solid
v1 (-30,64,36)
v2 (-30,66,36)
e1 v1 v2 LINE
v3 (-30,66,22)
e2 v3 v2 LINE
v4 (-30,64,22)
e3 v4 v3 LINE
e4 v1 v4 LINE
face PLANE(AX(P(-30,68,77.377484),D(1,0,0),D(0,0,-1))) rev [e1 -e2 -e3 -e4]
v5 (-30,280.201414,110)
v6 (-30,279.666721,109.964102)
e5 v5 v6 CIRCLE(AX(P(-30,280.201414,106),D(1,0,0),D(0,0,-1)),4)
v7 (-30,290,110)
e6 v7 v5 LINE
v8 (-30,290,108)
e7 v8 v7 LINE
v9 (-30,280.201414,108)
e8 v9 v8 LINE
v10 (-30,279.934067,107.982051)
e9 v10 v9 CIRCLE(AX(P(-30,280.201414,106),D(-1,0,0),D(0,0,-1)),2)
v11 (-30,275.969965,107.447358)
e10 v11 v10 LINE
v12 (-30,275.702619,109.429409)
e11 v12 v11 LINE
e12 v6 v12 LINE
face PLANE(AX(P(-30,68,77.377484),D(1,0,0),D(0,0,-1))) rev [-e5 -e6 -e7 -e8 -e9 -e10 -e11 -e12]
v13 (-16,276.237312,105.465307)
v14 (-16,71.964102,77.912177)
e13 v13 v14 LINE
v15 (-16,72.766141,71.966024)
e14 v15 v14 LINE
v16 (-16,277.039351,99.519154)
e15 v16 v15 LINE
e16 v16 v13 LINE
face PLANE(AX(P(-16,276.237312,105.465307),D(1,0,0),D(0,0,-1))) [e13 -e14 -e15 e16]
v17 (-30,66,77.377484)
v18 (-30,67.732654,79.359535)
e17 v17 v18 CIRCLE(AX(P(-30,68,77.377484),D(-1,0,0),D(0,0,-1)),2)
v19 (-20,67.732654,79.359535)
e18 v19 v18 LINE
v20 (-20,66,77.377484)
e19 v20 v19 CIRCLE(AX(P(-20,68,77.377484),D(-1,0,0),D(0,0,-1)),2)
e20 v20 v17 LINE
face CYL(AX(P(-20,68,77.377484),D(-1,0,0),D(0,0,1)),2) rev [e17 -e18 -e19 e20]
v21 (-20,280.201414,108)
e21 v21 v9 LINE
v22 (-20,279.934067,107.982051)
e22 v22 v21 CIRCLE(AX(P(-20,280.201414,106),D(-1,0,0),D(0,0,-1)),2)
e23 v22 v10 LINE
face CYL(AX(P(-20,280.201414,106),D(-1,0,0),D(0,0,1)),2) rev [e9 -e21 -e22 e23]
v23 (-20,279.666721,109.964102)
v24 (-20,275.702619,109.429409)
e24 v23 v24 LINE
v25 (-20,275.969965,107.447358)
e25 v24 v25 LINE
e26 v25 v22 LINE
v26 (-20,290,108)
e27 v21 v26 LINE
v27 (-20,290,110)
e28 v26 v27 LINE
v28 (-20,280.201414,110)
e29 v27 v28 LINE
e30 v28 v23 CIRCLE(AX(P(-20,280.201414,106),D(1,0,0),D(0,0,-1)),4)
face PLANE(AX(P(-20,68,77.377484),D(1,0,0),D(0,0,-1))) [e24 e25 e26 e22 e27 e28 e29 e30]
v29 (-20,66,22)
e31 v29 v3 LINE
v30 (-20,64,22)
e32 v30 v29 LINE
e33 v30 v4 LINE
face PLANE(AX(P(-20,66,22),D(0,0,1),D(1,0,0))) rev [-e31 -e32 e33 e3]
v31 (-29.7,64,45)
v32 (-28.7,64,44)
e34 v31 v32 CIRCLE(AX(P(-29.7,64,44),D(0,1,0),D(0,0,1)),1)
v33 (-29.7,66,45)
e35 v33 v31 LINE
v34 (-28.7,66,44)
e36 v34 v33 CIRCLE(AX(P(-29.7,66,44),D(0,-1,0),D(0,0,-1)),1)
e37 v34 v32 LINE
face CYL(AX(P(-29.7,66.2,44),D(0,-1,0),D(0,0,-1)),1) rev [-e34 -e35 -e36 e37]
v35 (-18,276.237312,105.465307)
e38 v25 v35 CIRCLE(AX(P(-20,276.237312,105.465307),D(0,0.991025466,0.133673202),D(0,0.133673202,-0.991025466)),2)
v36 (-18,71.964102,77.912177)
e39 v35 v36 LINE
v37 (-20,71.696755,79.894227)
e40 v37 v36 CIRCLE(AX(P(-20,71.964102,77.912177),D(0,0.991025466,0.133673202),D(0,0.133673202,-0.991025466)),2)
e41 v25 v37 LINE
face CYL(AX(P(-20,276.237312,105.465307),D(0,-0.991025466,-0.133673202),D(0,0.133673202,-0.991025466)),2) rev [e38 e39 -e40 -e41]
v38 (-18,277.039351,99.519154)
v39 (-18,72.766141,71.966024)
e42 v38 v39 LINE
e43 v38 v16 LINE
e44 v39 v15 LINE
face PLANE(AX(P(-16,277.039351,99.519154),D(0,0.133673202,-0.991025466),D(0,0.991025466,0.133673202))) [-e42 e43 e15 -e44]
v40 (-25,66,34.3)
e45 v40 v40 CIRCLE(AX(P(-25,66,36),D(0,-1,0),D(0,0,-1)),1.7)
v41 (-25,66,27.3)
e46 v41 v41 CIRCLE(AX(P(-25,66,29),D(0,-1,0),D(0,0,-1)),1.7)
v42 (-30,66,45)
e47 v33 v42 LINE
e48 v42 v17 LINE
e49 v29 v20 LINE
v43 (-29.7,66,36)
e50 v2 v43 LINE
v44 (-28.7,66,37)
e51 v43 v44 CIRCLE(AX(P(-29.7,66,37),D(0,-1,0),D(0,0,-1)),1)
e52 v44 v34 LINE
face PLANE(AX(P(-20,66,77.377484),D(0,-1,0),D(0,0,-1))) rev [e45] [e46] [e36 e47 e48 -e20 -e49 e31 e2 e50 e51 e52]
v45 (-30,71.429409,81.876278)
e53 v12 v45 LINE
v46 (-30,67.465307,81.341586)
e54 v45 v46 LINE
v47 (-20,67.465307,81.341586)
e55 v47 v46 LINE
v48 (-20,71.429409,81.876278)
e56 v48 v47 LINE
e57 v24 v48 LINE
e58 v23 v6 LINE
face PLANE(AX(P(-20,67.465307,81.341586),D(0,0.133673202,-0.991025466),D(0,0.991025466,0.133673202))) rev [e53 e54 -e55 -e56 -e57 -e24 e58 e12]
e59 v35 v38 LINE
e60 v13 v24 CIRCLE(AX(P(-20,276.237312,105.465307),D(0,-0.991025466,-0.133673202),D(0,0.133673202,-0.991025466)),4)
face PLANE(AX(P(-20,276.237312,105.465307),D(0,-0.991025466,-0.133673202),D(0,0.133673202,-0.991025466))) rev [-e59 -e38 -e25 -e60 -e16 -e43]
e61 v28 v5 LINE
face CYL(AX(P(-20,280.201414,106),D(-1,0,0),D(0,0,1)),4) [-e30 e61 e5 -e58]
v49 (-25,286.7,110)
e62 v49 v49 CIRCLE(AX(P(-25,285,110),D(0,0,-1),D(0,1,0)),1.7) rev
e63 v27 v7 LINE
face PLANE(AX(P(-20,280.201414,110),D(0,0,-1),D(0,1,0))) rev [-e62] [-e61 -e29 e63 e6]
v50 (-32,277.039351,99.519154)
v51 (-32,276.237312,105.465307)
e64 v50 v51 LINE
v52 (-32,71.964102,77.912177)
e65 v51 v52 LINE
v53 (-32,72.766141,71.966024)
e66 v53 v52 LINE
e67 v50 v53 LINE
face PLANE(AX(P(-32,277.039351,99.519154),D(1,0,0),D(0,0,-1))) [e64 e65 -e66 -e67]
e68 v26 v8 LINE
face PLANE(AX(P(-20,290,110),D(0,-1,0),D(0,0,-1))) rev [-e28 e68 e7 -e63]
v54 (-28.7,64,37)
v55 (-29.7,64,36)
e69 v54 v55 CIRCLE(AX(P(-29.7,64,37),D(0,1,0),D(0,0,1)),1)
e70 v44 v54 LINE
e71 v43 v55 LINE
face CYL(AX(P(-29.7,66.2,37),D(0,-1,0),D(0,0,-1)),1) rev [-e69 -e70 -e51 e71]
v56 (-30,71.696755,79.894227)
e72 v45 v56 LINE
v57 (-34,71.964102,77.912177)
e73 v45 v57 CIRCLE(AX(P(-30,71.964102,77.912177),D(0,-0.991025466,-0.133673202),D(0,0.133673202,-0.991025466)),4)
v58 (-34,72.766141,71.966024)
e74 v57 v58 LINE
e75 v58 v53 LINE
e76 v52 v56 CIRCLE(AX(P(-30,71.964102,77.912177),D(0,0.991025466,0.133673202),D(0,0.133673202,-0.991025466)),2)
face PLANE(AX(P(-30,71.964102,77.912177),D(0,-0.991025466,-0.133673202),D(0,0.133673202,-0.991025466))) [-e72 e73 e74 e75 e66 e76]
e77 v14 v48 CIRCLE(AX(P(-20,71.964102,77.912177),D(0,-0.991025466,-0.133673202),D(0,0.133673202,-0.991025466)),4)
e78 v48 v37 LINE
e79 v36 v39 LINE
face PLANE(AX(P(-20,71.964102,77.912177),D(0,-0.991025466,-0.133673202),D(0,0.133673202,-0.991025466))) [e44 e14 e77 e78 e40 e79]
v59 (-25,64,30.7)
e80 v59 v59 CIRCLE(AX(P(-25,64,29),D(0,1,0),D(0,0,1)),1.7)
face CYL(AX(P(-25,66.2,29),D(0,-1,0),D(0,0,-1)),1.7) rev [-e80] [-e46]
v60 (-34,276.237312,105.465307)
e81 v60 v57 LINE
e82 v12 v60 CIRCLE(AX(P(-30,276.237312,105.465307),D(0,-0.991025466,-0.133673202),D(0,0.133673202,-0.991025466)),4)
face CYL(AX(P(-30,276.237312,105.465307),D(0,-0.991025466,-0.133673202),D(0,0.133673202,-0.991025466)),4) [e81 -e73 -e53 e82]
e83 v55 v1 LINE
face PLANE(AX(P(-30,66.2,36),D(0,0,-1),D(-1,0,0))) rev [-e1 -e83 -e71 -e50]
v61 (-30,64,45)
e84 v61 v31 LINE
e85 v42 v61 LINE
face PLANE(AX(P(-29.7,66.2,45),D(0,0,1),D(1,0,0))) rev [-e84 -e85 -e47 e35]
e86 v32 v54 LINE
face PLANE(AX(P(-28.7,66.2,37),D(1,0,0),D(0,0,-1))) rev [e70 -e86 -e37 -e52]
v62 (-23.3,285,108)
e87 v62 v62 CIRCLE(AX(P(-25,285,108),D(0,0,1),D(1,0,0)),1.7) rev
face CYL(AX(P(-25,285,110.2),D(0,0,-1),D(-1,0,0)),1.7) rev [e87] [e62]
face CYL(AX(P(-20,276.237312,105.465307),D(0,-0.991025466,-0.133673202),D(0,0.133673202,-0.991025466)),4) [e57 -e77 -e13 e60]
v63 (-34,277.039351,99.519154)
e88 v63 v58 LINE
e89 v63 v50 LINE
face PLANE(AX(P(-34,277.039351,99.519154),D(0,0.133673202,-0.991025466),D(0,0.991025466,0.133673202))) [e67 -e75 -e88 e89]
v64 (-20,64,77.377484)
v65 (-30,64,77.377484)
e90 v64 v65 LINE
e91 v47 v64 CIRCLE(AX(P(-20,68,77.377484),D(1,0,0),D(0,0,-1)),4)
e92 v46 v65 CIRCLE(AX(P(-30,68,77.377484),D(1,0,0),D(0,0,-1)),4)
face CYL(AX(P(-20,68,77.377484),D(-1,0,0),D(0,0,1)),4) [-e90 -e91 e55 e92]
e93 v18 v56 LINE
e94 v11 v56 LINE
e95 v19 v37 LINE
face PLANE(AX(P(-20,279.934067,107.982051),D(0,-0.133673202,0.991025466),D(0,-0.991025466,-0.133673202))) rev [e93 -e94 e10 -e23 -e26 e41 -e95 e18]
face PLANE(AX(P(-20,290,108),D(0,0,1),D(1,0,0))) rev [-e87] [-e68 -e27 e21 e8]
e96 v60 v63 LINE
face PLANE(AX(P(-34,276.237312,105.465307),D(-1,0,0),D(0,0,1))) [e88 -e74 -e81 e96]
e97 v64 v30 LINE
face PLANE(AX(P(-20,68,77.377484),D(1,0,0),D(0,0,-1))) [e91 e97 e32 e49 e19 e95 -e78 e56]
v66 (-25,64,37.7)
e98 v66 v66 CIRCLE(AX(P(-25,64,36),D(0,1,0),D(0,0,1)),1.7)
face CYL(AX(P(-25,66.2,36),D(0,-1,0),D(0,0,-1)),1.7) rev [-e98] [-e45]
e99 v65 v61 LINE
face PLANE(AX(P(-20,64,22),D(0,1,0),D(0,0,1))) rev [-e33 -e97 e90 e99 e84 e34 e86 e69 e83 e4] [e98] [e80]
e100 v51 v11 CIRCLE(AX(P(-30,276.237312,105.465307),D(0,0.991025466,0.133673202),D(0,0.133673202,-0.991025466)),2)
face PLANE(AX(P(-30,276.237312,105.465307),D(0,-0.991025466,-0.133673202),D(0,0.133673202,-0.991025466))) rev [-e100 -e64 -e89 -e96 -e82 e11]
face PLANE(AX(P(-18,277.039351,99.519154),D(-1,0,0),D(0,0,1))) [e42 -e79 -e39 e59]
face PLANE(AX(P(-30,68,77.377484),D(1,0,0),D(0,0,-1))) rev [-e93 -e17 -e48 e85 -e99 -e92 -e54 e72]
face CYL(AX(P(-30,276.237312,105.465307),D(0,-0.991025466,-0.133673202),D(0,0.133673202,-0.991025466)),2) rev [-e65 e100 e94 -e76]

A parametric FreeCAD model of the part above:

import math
import FreeCAD as App
import Part
import Sketcher

V = App.Vector

doc = App.newDocument("Part")
body = doc.addObject("PartDesign::Body", "Body")

# Sketch on YZ plane
sketch1 = body.newObject("Sketcher::SketchObject", "Sketch")
sketch1.AttachmentSupport = (doc.getObject("YZ_Plane"), [""])
sketch1.MapMode = "FlatFace"
sketch1.AttachmentOffset = App.Placement(V(0, 0, -30), App.Rotation())
sketch1.addGeometry([
    Part.LineSegment(V(64, 77.38, 0), V(64, 22, 0)),  # 0
    Part.LineSegment(V(64, 22, 0), V(66, 22, 0)),  # 1
    Part.LineSegment(V(66, 22, 0), V(66, 77.38, 0)),  # 2
    Part.ArcOfCircle(Part.Circle(V(68, 77.38, 0), V(0, 0, 1), 2), math.radians(98), math.radians(180)),  # 3
    Part.LineSegment(V(67.73, 79.36, 0), V(279.93, 107.98, 0)),  # 4
    Part.ArcOfCircle(Part.Circle(V(280.2, 106, 0), V(0, 0, 1), 2), math.radians(90), math.radians(97.68)),  # 5
    Part.LineSegment(V(280.2, 108, 0), V(290, 108, 0)),  # 6
    Part.LineSegment(V(290, 108, 0), V(290, 110, 0)),  # 7
    Part.LineSegment(V(290, 110, 0), V(280.2, 110, 0)),  # 8
    Part.ArcOfCircle(Part.Circle(V(280.2, 106, 0), V(0, 0, 1), 4), math.radians(90), math.radians(97.68)),  # 9
    Part.LineSegment(V(279.67, 109.96, 0), V(67.47, 81.34, 0)),  # 10
    Part.ArcOfCircle(Part.Circle(V(68, 77.38, 0), V(0, 0, 1), 4), math.radians(98), math.radians(180)),  # 11
], False)
sketch1.addConstraint([
    Sketcher.Constraint("Coincident", 0, 2, 1, 1),
    Sketcher.Constraint("Coincident", 1, 2, 2, 1),
    Sketcher.Constraint("Tangent", 2, 2, 3, 2),
    Sketcher.Constraint("Tangent", 3, 1, 4, 1),
    Sketcher.Constraint("Tangent", 4, 2, 5, 2),
    Sketcher.Constraint("Tangent", 5, 1, 6, 1),
    Sketcher.Constraint("Coincident", 6, 2, 7, 1),
    Sketcher.Constraint("Coincident", 7, 2, 8, 1),
    Sketcher.Constraint("Tangent", 8, 2, 9, 1),
    Sketcher.Constraint("Tangent", 9, 2, 10, 1),
    Sketcher.Constraint("Tangent", 10, 2, 11, 1),
    Sketcher.Constraint("Tangent", 11, 2, 0, 1),
    Sketcher.Constraint("Vertical", 0),
    Sketcher.Constraint("Horizontal", 1),
    Sketcher.Constraint("Vertical", 2),
    Sketcher.Constraint("Horizontal", 6),
    Sketcher.Constraint("Vertical", 7),
    Sketcher.Constraint("Horizontal", 8),
    Sketcher.Constraint("Coincident", 9, 3, 5, 3),
    Sketcher.Constraint("Coincident", 11, 3, 3, 3),
    Sketcher.Constraint("Equal", 3, 5),
    Sketcher.Constraint("Equal", 9, 11),
    Sketcher.Constraint("Radius", 3, 2.0),
    Sketcher.Constraint("Radius", 9, 4.0),
    Sketcher.Constraint("DistanceX", -1, 1, 3, 3, 68.0),
    Sketcher.Constraint("DistanceY", -1, 1, 5, 3, 106.0),
    Sketcher.Constraint("DistanceY", -1, 1, 0, 2, 22.0),
    Sketcher.Constraint("DistanceX", -1, 1, 6, 2, 290.0),
    Sketcher.Constraint("Distance", 4, 214.123068),
    Sketcher.Constraint("DistanceX", 6, 1, 6, 2, 9.798586),
])
pad1 = body.newObject("PartDesign::Pad", "Pad")
pad1.Profile = sketch1
pad1.Length = 10

# Sketch on an angled plane
sketch2 = body.newObject("Sketcher::SketchObject", "Sketch001")
sketch2.Placement = App.Placement(V(0, 80.999512, 10.925516), App.Rotation(V(-1, 0, 0), V(0, 0.133673202, -0.991025466), V(0, -0.991025466, -0.133673202), "ZXY"))
sketch2.addGeometry([
    Part.LineSegment(V(34, -67.59, 0), V(34, -61.59, 0)),  # 0
    Part.LineSegment(V(34, -61.59, 0), V(32, -61.59, 0)),  # 1
    Part.LineSegment(V(32, -61.59, 0), V(32, -67.59, 0)),  # 2
    Part.ArcOfCircle(Part.Circle(V(30, -67.59, 0), V(0, 0, 1), 2), math.radians(-90), math.radians(0)),  # 3
    Part.LineSegment(V(30, -69.59, 0), V(29.9, -69.59, 0)),  # 4
    Part.LineSegment(V(29.9, -69.59, 0), V(29.9, -71.59, 0)),  # 5
    Part.LineSegment(V(29.9, -71.59, 0), V(30, -71.59, 0)),  # 6
    Part.ArcOfCircle(Part.Circle(V(30, -67.59, 0), V(0, 0, 1), 4), math.radians(-90), math.radians(0)),  # 7
    Part.LineSegment(V(16, -61.59, 0), V(16, -67.59, 0)),  # 8
    Part.ArcOfCircle(Part.Circle(V(20, -67.59, 0), V(0, 0, 1), 4), math.radians(180), math.radians(270)),  # 9
    Part.LineSegment(V(20, -71.59, 0), V(20.1, -71.59, 0)),  # 10
    Part.LineSegment(V(20.1, -71.59, 0), V(20.1, -69.59, 0)),  # 11
    Part.LineSegment(V(20.1, -69.59, 0), V(20, -69.59, 0)),  # 12
    Part.ArcOfCircle(Part.Circle(V(20, -67.59, 0), V(0, 0, 1), 2), math.radians(180), math.radians(270)),  # 13
    Part.LineSegment(V(18, -67.59, 0), V(18, -61.59, 0)),  # 14
    Part.LineSegment(V(18, -61.59, 0), V(16, -61.59, 0)),  # 15
], False)
sketch2.addConstraint([
    Sketcher.Constraint("Coincident", 0, 2, 1, 1),
    Sketcher.Constraint("Coincident", 1, 2, 2, 1),
    Sketcher.Constraint("Tangent", 2, 2, 3, 2),
    Sketcher.Constraint("Tangent", 3, 1, 4, 1),
    Sketcher.Constraint("Coincident", 4, 2, 5, 1),
    Sketcher.Constraint("Coincident", 5, 2, 6, 1),
    Sketcher.Constraint("Tangent", 6, 2, 7, 1),
    Sketcher.Constraint("Tangent", 7, 2, 0, 1),
    Sketcher.Constraint("Tangent", 8, 2, 9, 1),
    Sketcher.Constraint("Tangent", 9, 2, 10, 1),
    Sketcher.Constraint("Coincident", 10, 2, 11, 1),
    Sketcher.Constraint("Coincident", 11, 2, 12, 1),
    Sketcher.Constraint("Tangent", 12, 2, 13, 2),
    Sketcher.Constraint("Tangent", 13, 1, 14, 1),
    Sketcher.Constraint("Coincident", 14, 2, 15, 1),
    Sketcher.Constraint("Coincident", 15, 2, 8, 1),
    Sketcher.Constraint("Vertical", 0),
    Sketcher.Constraint("Horizontal", 1),
    Sketcher.Constraint("Vertical", 2),
    Sketcher.Constraint("Horizontal", 4),
    Sketcher.Constraint("Vertical", 5),
    Sketcher.Constraint("Horizontal", 6),
    Sketcher.Constraint("Vertical", 8),
    Sketcher.Constraint("Horizontal", 10),
    Sketcher.Constraint("Vertical", 11),
    Sketcher.Constraint("Horizontal", 12),
    Sketcher.Constraint("Vertical", 14),
    Sketcher.Constraint("Horizontal", 15),
    Sketcher.Constraint("Coincident", 7, 3, 3, 3),
    Sketcher.Constraint("Coincident", 13, 3, 9, 3),
    Sketcher.Constraint("Equal", 7, 9),
    Sketcher.Constraint("Equal", 3, 13),
    Sketcher.Constraint("Horizontal", 7, 3, 9, 3),
    Sketcher.Constraint("Horizontal", 1, 2, 14, 2),
    Sketcher.Constraint("Equal", 6, 10),
    Sketcher.Constraint("Radius", 3, 2.0),
    Sketcher.Constraint("Radius", 7, 4.0),
    Sketcher.Constraint("DistanceY", 0, 1, 0, 2, 6.0),
    Sketcher.Constraint("DistanceX", 4, 2, 4, 1, 0.1),
    Sketcher.Constraint("DistanceX", -1, 1, 3, 3, 30.0),
    Sketcher.Constraint("DistanceX", -1, 1, 9, 3, 20.0),
    Sketcher.Constraint("DistanceY", 3, 3, -1, 1, 67.593279),
])
pad2 = body.newObject("PartDesign::Pad", "Pad001")
pad2.Profile = sketch2
pad2.Length = 206.123068
pad2.Reversed = True

# Sketch on XZ plane
sketch3 = body.newObject("Sketcher::SketchObject", "Sketch002")
sketch3.AttachmentSupport = (doc.getObject("XZ_Plane"), [""])
sketch3.MapMode = "FlatFace"
sketch3.AttachmentOffset = App.Placement(V(0, 0, -63.8), App.Rotation())
sketch3.addGeometry([
    Part.Circle(V(-25, 29, 0), V(0, 0, 1), 1.7),
    Part.Circle(V(-25, 36, 0), V(0, 0, 1), 1.7),
], False)
sketch3.addConstraint([
    Sketcher.Constraint("Equal", 0, 1),
    Sketcher.Constraint("Vertical", 0, 3, 1, 3),
    Sketcher.Constraint("Diameter", 0, 3.4),
    Sketcher.Constraint("DistanceX", 0, 3, -1, 1, 25.0),
    Sketcher.Constraint("DistanceY", -1, 1, 0, 3, 29.0),
    Sketcher.Constraint("DistanceY", -1, 1, 1, 3, 36.0),
])
pocket1 = body.newObject("PartDesign::Pocket", "Pocket")
pocket1.Profile = sketch3
pocket1.Length = 2.4

# Sketch on XY plane
sketch4 = body.newObject("Sketcher::SketchObject", "Sketch003")
sketch4.AttachmentSupport = (doc.getObject("XY_Plane"), [""])
sketch4.MapMode = "FlatFace"
sketch4.AttachmentOffset = App.Placement(V(0, 0, 107.8), App.Rotation())
sketch4.addGeometry(Part.Circle(V(-25, 285, 0), V(0, 0, 1), 1.7), False)
sketch4.addConstraint([
    Sketcher.Constraint("Diameter", 0, 3.4),
    Sketcher.Constraint("DistanceX", 0, 3, -1, 1, 25.0),
    Sketcher.Constraint("DistanceY", -1, 1, 0, 3, 285.0),
])
pocket2 = body.newObject("PartDesign::Pocket", "Pocket001")
pocket2.Profile = sketch4
pocket2.Length = 2.4
pocket2.Reversed = True

# Sketch on XZ plane
sketch5 = body.newObject("Sketcher::SketchObject", "Sketch004")
sketch5.AttachmentSupport = (doc.getObject("XZ_Plane"), [""])
sketch5.MapMode = "FlatFace"
sketch5.AttachmentOffset = App.Placement(V(0, 0, -63.8), App.Rotation())
sketch5.addGeometry([
    Part.LineSegment(V(-30, 36, 0), V(-29.7, 36, 0)),  # 0
    Part.ArcOfCircle(Part.Circle(V(-29.7, 37, 0), V(0, 0, 1), 1), math.radians(-90), math.radians(0)),  # 1
    Part.LineSegment(V(-28.7, 37, 0), V(-28.7, 44, 0)),  # 2
    Part.ArcOfCircle(Part.Circle(V(-29.7, 44, 0), V(0, 0, 1), 1), math.radians(0), math.radians(90)),  # 3
    Part.LineSegment(V(-29.7, 45, 0), V(-30, 45, 0)),  # 4
    Part.ArcOfCircle(Part.Circle(V(-30, 44, 0), V(0, 0, 1), 1), math.radians(90), math.radians(180)),  # 5
    Part.LineSegment(V(-31, 44, 0), V(-31, 37, 0)),  # 6
    Part.ArcOfCircle(Part.Circle(V(-30, 37, 0), V(0, 0, 1), 1), math.radians(-180), math.radians(-90)),  # 7
], False)
sketch5.addConstraint([
    Sketcher.Constraint("Tangent", 0, 2, 1, 1),
    Sketcher.Constraint("Tangent", 1, 2, 2, 1),
    Sketcher.Constraint("Tangent", 2, 2, 3, 1),
    Sketcher.Constraint("Tangent", 3, 2, 4, 1),
    Sketcher.Constraint("Tangent", 4, 2, 5, 1),
    Sketcher.Constraint("Tangent", 5, 2, 6, 1),
    Sketcher.Constraint("Tangent", 6, 2, 7, 1),
    Sketcher.Constraint("Tangent", 7, 2, 0, 1),
    Sketcher.Constraint("Horizontal", 0),
    Sketcher.Constraint("Vertical", 2),
    Sketcher.Constraint("Horizontal", 4),
    Sketcher.Constraint("Vertical", 6),
    Sketcher.Constraint("Equal", 1, 3),
    Sketcher.Constraint("Equal", 3, 5),
    Sketcher.Constraint("Equal", 5, 7),
    Sketcher.Constraint("Radius", 1, 1.0),
    Sketcher.Constraint("DistanceY", 2, 1, 2, 2, 7.0),
    Sketcher.Constraint("DistanceX", 0, 1, 0, 2, 0.3),
    Sketcher.Constraint("DistanceY", -1, 1, 1, 3, 37.0),
    Sketcher.Constraint("DistanceX", 5, 3, -1, 1, 30.0),
])
pocket3 = body.newObject("PartDesign::Pocket", "Pocket002")
pocket3.Profile = sketch5
pocket3.Length = 2.4

doc.recompute()
